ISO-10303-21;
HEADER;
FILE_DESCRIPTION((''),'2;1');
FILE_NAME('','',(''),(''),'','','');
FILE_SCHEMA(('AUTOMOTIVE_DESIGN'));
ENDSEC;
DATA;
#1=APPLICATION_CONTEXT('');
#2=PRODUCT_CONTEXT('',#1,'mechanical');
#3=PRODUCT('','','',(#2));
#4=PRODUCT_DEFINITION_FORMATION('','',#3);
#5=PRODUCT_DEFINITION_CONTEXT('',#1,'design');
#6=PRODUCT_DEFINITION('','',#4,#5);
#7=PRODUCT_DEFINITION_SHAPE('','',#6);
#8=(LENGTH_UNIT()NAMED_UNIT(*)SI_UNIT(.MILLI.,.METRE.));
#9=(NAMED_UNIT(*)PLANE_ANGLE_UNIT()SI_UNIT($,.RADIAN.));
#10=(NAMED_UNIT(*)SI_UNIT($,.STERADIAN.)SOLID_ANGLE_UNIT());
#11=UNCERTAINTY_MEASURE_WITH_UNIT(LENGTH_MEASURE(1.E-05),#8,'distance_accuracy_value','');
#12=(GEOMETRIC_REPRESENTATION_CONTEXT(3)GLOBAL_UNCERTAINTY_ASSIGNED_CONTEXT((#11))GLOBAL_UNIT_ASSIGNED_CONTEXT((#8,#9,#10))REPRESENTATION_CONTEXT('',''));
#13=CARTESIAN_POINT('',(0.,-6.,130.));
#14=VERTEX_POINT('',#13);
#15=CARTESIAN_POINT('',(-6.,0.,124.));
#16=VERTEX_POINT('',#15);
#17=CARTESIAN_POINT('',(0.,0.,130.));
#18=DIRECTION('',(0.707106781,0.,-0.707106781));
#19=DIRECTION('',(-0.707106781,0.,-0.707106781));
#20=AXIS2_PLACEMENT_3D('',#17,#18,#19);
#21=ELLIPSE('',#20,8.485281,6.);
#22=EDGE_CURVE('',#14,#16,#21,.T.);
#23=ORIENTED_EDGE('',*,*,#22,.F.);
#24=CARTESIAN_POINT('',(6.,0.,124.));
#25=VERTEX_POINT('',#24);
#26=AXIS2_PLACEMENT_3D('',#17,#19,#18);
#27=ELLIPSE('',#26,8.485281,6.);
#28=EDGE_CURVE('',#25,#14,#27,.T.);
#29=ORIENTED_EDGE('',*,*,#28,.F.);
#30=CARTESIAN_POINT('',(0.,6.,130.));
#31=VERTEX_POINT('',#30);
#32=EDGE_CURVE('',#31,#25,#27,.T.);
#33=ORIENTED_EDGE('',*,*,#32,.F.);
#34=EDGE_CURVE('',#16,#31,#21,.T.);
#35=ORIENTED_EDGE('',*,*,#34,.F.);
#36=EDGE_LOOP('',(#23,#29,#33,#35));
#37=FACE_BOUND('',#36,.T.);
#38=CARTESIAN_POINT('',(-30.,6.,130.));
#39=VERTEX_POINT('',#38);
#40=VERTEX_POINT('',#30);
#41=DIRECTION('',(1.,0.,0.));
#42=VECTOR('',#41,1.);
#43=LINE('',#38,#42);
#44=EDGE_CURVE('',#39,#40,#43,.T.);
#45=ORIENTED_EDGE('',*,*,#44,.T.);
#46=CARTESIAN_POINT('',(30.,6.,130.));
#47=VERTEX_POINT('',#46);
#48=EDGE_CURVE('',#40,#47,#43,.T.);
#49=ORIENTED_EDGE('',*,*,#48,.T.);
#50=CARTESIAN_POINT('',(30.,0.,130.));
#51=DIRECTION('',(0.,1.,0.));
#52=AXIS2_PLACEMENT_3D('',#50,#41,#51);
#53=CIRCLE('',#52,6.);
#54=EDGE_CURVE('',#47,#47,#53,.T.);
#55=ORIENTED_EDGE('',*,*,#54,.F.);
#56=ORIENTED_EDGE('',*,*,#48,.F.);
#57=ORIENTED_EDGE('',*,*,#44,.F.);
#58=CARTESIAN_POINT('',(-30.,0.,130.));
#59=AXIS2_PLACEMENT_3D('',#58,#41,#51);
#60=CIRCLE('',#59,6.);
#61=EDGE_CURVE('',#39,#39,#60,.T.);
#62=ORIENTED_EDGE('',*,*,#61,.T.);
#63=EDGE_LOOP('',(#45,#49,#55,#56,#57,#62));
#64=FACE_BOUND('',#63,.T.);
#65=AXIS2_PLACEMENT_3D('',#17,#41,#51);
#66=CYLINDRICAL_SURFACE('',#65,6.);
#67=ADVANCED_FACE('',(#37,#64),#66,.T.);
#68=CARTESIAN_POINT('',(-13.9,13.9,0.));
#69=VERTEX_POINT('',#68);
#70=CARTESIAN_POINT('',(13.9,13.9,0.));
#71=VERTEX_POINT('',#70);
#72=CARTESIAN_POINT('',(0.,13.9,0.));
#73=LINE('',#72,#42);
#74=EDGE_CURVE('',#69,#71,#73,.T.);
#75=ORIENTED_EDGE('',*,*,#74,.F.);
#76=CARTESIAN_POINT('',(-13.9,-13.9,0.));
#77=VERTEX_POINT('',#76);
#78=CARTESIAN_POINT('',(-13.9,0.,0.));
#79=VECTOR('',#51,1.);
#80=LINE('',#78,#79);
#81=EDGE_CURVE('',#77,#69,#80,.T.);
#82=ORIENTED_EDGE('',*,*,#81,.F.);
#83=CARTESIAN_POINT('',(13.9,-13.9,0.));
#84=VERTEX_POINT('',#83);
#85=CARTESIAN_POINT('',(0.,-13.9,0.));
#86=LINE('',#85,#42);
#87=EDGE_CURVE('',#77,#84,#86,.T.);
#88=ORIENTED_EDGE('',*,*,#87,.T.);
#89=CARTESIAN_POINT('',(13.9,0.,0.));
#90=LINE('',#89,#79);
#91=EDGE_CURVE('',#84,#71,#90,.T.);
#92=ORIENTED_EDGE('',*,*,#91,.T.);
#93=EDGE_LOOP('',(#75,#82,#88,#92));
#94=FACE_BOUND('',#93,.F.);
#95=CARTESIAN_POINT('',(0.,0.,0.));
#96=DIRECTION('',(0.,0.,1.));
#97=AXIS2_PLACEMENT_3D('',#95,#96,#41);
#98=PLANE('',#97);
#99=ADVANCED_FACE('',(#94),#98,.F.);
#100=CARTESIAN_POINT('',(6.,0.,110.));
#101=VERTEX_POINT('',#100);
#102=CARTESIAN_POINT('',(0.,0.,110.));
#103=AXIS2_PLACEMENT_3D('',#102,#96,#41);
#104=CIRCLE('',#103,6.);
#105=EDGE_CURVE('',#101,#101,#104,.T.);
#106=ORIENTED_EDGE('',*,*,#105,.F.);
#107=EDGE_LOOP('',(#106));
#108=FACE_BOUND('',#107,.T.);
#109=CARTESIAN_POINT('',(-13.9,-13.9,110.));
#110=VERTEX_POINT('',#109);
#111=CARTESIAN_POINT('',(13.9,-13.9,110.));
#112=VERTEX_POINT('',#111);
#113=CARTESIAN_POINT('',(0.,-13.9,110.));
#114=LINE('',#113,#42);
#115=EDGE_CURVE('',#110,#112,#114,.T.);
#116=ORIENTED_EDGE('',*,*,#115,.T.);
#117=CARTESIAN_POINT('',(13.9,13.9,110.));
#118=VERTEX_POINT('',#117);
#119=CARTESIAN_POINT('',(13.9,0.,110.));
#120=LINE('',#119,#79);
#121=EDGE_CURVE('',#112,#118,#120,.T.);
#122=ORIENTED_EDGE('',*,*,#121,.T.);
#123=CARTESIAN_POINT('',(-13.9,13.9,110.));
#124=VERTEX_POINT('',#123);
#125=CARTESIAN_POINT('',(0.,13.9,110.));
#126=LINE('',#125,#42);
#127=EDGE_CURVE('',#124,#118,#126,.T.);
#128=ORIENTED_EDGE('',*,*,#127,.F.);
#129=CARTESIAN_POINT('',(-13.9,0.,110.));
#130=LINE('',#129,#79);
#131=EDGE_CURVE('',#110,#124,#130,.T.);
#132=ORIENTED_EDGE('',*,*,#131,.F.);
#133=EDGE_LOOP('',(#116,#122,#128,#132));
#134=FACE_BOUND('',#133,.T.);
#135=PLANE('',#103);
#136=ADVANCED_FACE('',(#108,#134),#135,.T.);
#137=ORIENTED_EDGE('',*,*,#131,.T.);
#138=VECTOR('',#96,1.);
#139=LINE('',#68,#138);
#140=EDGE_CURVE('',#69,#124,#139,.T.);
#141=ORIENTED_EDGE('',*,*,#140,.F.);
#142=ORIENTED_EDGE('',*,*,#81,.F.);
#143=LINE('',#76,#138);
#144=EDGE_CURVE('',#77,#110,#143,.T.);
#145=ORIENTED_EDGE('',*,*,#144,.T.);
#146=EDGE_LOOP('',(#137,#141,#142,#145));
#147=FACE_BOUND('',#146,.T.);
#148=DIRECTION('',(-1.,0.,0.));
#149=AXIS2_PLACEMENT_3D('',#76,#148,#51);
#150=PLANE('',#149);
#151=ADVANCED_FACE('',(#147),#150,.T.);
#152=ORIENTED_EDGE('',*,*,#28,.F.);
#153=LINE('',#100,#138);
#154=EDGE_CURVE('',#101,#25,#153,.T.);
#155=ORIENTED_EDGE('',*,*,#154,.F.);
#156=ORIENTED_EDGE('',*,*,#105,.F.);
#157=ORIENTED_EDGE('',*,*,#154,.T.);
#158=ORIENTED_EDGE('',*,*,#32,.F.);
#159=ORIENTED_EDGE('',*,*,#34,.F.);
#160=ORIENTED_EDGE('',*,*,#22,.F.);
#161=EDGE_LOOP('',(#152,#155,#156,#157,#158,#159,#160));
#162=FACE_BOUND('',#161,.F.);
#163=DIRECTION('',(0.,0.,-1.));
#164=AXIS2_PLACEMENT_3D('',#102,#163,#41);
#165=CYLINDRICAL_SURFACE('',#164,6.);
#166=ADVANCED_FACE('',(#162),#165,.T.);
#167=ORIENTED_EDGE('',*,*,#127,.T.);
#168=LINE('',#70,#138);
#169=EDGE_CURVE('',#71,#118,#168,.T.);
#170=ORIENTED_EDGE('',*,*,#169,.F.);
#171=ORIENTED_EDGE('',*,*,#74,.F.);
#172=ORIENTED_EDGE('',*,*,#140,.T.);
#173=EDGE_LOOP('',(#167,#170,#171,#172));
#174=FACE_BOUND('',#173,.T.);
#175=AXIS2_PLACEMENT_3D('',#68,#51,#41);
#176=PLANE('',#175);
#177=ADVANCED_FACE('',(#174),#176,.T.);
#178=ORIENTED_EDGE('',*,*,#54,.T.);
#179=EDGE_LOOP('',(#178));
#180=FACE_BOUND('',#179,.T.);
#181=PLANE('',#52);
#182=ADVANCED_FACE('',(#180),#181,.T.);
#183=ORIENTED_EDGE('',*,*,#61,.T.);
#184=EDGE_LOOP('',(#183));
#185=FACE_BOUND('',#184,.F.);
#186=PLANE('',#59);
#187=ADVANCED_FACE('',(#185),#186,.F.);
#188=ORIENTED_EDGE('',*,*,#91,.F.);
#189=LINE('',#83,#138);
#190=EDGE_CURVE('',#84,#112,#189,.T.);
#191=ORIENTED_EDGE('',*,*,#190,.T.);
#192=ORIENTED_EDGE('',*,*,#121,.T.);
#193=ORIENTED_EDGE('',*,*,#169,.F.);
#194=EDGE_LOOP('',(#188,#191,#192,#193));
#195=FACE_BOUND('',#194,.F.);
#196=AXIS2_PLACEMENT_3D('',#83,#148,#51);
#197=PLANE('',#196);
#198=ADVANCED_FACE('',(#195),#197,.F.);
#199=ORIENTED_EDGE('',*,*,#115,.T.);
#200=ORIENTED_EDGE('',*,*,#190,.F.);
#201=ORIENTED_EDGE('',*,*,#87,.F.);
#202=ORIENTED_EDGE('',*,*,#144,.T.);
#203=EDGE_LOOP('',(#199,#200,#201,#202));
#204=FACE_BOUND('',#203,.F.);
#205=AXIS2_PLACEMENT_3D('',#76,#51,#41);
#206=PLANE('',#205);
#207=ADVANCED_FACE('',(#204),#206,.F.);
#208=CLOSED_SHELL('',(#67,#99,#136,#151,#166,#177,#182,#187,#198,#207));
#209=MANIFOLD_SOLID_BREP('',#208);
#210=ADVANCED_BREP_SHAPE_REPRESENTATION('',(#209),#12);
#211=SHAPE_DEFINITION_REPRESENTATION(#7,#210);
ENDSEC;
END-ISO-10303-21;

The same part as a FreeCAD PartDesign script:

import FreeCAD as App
import Part
import Sketcher

V = App.Vector
Q = App.Units.Quantity


def add_polygon(sketch, points):
    """Adds a closed chain of lines whose ends are joined by coincident constraints."""
    first, n = sketch.GeometryCount, len(points)
    for a, b in zip(points, points[1:] + points[:1]):
        sketch.addGeometry(Part.LineSegment(App.Vector(*a, 0), App.Vector(*b, 0)), False)
    for i in range(n):
        sketch.addConstraint(Sketcher.Constraint("Coincident", first + i, 2, first + (i + 1) % n, 1))

doc = App.newDocument("Part")
body = doc.addObject("PartDesign::Body", "Body")

sketch1 = body.newObject("Sketcher::SketchObject", "Sketch")
sketch1.AttachmentSupport = (doc.getObject("XY_Plane"), [""])
sketch1.MapMode = "FlatFace"
add_polygon(sketch1, [(-14, 14), (-14, -14), (14, -14), (14, 14)])
sketch1.addConstraint([
    Sketcher.Constraint("Vertical", 0),
    Sketcher.Constraint("Horizontal", 1),
    Sketcher.Constraint("Vertical", 2),
    Sketcher.Constraint("Horizontal", 3),
    Sketcher.Constraint("Symmetric", 0, 2, 2, 2, -1, 1),
    Sketcher.Constraint("Equal", 3, 0),
    Sketcher.Constraint("DistanceX", 1, 1, 1, 2, Q("27.8 mm")),
])
pad1 = body.newObject("PartDesign::Pad", "Pad")
pad1.Profile = sketch1
pad1.Length = 110

sketch2 = body.newObject("Sketcher::SketchObject", "Sketch001")
sketch2.AttachmentSupport = (doc.getObject("XY_Plane"), [""])
sketch2.MapMode = "FlatFace"
sketch2.AttachmentOffset = App.Placement(V(0, 0, 110), App.Rotation())
sketch2.addGeometry(Part.Circle(V(0, 0, 0), V(0, 0, 1), 6), False)
sketch2.addConstraint([
    Sketcher.Constraint("Coincident", 0, 3, -1, 1),
    Sketcher.Constraint("Diameter", 0, Q("12 mm")),
])
pad2 = body.newObject("PartDesign::Pad", "Pad001")
pad2.Profile = sketch2
pad2.Length = 20

sketch3 = body.newObject("Sketcher::SketchObject", "Sketch002")
sketch3.AttachmentSupport = (doc.getObject("YZ_Plane"), [""])
sketch3.MapMode = "FlatFace"
sketch3.addGeometry(Part.Circle(V(0, 130, 0), V(0, 0, 1), 6), False)
sketch3.addConstraint([
    Sketcher.Constraint("PointOnObject", 0, 3, -2),
    Sketcher.Constraint("Diameter", 0, Q("12 mm")),
    Sketcher.Constraint("DistanceY", -1, 1, 0, 3, Q("130 mm")),
])
pad3 = body.newObject("PartDesign::Pad", "Pad002")
pad3.Profile = sketch3
pad3.Length = 60
pad3.Midplane = True

doc.recompute()
